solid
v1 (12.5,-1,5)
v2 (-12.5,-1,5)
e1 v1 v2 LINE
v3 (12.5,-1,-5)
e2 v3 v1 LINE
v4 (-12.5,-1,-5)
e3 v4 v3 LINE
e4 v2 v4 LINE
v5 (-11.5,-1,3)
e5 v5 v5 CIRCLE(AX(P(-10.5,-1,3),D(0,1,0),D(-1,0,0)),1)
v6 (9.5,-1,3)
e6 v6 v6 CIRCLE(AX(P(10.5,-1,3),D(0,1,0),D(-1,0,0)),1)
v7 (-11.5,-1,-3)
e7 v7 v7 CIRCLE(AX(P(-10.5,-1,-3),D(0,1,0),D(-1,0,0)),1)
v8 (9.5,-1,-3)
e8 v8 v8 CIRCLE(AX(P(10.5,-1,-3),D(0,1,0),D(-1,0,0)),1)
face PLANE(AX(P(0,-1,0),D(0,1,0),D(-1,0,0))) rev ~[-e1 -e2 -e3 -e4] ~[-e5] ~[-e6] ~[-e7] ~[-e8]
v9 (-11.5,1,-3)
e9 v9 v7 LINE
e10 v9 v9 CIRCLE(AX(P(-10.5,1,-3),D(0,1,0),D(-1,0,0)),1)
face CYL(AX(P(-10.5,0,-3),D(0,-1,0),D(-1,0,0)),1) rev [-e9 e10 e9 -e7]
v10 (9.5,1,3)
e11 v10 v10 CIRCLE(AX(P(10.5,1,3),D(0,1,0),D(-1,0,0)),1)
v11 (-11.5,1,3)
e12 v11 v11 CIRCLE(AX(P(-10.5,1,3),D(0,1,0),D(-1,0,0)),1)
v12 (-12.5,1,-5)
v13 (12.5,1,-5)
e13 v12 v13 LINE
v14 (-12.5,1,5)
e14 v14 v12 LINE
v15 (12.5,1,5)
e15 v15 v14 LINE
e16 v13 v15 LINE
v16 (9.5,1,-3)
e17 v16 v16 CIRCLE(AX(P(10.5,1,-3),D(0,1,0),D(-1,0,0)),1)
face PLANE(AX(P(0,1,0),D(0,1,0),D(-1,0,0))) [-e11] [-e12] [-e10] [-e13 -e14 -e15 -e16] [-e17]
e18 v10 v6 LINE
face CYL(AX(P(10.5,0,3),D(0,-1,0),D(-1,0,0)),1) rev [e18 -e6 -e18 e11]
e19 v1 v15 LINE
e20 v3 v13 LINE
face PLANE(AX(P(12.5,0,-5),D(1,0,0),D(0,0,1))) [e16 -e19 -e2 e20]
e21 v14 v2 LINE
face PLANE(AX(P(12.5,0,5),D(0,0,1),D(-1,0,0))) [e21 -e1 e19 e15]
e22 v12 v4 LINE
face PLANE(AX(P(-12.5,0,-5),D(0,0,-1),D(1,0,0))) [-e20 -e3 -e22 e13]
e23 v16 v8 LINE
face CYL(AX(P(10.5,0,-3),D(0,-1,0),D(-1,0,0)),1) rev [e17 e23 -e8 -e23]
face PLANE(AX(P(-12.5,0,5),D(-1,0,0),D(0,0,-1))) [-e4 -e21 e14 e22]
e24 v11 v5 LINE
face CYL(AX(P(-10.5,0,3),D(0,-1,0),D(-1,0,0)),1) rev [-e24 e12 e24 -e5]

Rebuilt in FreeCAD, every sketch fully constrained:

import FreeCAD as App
import Part
import Sketcher

V = App.Vector

doc = App.newDocument("Part")
params = doc.addObject("Spreadsheet::Sheet", "Params")
for row, (alias, value) in enumerate([
    ("sketch1_diameter", "2 mm"),
    ("sketch1_width", "25 mm"),
    ("sketch1_height", "10 mm"),
    ("pad1_length", "2 mm"),
], start=1):
    params.set(f"A{row}", alias)
    params.set(f"B{row}", "=" + value)
    params.setAlias(f"B{row}", alias)

body = doc.addObject("PartDesign::Body", "Body")

# Sketch on XZ plane
sketch1 = body.newObject("Sketcher::SketchObject", "Sketch")
sketch1.AttachmentSupport = (doc.getObject("XZ_Plane"), [""])
sketch1.MapMode = "FlatFace"
sketch1.addGeometry(Part.LineSegment(V(-12.5, 5, 0), V(12.5, 5, 0)), False)
sketch1.addGeometry(Part.LineSegment(V(12.5, 5, 0), V(12.5, -5, 0)), False)
sketch1.addGeometry(Part.LineSegment(V(12.5, -5, 0), V(-12.5, -5, 0)), False)
sketch1.addGeometry(Part.LineSegment(V(-12.5, -5, 0), V(-12.5, 5, 0)), False)
sketch1.addGeometry(Part.Circle(V(10.5, -3, 0), V(0, 0, 1), 1), False)
sketch1.addGeometry(Part.Circle(V(-10.5, -3, 0), V(0, 0, 1), 1), False)
sketch1.addGeometry(Part.Circle(V(10.5, 3, 0), V(0, 0, 1), 1), False)
sketch1.addGeometry(Part.Circle(V(-10.5, 3, 0), V(0, 0, 1), 1), False)
sketch1.addConstraint(Sketcher.Constraint("Coincident", 0, 2, 1, 1))
sketch1.addConstraint(Sketcher.Constraint("Coincident", 1, 2, 2, 1))
sketch1.addConstraint(Sketcher.Constraint("Coincident", 2, 2, 3, 1))
sketch1.addConstraint(Sketcher.Constraint("Coincident", 3, 2, 0, 1))
sketch1.addConstraint(Sketcher.Constraint("Horizontal", 0))
sketch1.addConstraint(Sketcher.Constraint("Vertical", 1))
sketch1.addConstraint(Sketcher.Constraint("Horizontal", 2))
sketch1.addConstraint(Sketcher.Constraint("Vertical", 3))
sketch1.addConstraint(Sketcher.Constraint("Equal", 4, 5))
sketch1.addConstraint(Sketcher.Constraint("Equal", 5, 6))
sketch1.addConstraint(Sketcher.Constraint("Equal", 6, 7))
sketch1.addConstraint(Sketcher.Constraint("Symmetric", 5, 3, 6, 3, -1, 1))
sketch1.addConstraint(Sketcher.Constraint("Symmetric", 4, 3, 7, 3, -1, 1))
sketch1.addConstraint(Sketcher.Constraint("Symmetric", 0, 2, 2, 2, -1, 1))
sketch1.addConstraint(Sketcher.Constraint("Symmetric", 4, 3, 5, 3, -2))
sketch1.addConstraint(Sketcher.Constraint("Diameter", 4, 2.0))
sketch1.addConstraint(Sketcher.Constraint("DistanceX", 0, 1, 0, 2, 25.0))
sketch1.addConstraint(Sketcher.Constraint("DistanceY", 1, 2, 1, 1, 10.0))
sketch1.addConstraint(Sketcher.Constraint("DistanceX", 5, 3, 4, 3, 21.0))
sketch1.addConstraint(Sketcher.Constraint("DistanceY", 4, 3, 6, 3, 6.0))
sketch1.setExpression("Constraints[15]", "Params.sketch1_diameter")
sketch1.setExpression("Constraints[16]", "Params.sketch1_width")
sketch1.setExpression("Constraints[17]", "Params.sketch1_height")
pad1 = body.newObject("PartDesign::Pad", "Pad")
pad1.Profile = sketch1
pad1.setExpression("Length", "Params.pad1_length")
pad1.Midplane = True

doc.recompute()
